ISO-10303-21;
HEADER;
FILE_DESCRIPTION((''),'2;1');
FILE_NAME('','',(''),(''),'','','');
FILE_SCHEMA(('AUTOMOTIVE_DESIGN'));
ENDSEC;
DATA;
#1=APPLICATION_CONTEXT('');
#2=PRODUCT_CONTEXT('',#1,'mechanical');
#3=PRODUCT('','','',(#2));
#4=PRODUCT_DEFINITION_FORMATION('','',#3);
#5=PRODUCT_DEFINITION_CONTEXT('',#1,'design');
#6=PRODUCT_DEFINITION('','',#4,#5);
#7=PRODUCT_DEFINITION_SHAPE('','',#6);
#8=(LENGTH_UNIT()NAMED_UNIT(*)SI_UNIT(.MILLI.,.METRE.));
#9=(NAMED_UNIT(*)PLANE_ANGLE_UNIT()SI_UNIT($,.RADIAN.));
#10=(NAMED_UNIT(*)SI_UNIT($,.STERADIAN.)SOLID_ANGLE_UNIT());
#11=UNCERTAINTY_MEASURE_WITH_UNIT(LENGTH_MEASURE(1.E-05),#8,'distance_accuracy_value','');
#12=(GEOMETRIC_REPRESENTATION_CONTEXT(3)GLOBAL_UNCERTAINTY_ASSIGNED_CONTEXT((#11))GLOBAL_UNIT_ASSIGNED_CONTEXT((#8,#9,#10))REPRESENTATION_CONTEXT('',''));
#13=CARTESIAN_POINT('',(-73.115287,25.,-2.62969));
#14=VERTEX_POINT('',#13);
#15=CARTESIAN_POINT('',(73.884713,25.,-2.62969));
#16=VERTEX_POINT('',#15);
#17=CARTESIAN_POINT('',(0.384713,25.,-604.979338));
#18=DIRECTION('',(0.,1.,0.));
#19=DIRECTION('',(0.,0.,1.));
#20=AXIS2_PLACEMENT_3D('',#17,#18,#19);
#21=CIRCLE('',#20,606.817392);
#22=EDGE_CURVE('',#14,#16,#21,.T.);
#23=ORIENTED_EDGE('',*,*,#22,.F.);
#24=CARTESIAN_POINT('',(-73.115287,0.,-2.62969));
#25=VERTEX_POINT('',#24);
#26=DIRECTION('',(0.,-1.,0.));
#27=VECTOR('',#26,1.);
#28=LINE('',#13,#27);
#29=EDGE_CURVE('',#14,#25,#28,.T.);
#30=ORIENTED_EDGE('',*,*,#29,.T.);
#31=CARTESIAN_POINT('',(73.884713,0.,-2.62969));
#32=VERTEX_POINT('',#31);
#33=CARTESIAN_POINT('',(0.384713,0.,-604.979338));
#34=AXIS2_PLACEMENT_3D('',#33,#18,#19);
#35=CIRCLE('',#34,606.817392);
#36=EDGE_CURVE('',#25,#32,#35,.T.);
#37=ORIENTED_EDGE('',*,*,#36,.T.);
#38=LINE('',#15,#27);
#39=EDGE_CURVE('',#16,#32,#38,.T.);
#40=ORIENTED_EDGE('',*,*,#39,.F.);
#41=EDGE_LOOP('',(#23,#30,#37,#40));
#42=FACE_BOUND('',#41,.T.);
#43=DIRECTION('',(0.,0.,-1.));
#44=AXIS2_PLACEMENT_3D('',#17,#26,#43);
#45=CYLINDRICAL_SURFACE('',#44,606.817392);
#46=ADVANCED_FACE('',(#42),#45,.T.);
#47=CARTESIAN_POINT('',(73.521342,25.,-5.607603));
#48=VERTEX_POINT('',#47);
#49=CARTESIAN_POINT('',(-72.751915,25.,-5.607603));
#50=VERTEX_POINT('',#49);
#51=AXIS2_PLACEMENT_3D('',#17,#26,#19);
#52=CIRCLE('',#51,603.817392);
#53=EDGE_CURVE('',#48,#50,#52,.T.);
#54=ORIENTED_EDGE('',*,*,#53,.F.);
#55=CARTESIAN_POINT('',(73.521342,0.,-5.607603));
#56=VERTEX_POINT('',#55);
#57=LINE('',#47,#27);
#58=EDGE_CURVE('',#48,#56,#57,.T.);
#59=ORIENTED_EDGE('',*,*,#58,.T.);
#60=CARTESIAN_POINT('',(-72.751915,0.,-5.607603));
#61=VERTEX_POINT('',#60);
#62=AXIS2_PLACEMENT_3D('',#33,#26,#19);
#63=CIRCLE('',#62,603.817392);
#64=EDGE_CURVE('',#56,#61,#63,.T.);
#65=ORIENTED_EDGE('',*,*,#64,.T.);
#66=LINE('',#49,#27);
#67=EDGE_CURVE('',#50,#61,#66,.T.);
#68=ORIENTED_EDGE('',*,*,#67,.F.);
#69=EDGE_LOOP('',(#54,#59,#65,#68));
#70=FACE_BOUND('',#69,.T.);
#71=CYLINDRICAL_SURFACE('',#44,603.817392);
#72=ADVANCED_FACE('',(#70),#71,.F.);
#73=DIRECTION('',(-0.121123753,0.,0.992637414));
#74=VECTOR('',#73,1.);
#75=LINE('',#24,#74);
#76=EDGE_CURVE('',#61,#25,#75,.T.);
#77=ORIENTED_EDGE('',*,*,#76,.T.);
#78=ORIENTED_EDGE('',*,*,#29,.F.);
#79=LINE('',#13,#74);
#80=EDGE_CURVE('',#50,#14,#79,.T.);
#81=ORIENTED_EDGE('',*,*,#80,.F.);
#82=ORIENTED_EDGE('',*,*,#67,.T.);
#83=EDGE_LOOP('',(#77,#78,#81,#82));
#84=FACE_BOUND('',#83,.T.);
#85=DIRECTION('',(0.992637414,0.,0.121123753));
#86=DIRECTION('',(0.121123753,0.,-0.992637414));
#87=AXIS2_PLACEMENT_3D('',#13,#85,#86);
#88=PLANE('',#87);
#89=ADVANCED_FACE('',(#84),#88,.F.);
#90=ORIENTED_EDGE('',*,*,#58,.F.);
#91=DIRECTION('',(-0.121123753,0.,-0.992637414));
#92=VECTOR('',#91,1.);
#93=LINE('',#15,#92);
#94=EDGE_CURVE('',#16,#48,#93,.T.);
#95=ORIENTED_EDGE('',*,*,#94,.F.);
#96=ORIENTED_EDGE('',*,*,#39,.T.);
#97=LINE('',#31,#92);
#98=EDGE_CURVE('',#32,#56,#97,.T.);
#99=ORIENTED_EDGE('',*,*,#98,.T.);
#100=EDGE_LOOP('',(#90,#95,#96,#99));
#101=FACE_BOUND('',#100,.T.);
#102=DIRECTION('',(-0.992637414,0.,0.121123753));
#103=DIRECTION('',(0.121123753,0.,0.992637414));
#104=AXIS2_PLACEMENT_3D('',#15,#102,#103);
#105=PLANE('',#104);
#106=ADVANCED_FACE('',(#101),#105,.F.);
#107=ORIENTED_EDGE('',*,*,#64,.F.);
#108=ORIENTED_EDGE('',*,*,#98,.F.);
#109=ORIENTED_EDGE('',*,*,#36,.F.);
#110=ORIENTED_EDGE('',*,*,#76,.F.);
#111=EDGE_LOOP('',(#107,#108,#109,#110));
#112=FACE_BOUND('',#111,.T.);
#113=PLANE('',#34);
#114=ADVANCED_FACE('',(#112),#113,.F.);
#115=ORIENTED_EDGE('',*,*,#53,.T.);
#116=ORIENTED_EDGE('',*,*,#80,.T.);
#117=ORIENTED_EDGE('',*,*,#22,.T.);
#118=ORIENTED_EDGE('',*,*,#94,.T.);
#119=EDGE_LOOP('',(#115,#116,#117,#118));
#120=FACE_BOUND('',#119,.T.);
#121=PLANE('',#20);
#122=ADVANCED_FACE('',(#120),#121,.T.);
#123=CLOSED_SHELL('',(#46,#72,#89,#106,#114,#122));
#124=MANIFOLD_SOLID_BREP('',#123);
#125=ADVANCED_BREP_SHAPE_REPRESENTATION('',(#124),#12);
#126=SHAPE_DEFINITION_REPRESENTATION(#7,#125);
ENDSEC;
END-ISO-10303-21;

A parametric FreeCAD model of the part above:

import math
import FreeCAD as App
import Part
import Sketcher

V = App.Vector

doc = App.newDocument("Part")
body = doc.addObject("PartDesign::Body", "Body")

# Sketch on XZ plane
sketch1 = body.newObject("Sketcher::SketchObject", "Sketch")
sketch1.AttachmentSupport = (doc.getObject("XZ_Plane"), [""])
sketch1.MapMode = "FlatFace"
sketch1.addGeometry(Part.LineSegment(V(-72.8, -5.6, 0), V(-73.1, -2.6, 0)), False)
sketch1.addGeometry(Part.ArcOfCircle(Part.Circle(V(0.4, -605, 0), V(0, 0, 1), 606.8), math.radians(83.04), math.radians(96.96)), False)
sketch1.addGeometry(Part.LineSegment(V(73.9, -2.6, 0), V(73.5, -5.6, 0)), False)
sketch1.addGeometry(Part.ArcOfCircle(Part.Circle(V(0.4, -605, 0), V(0, 0, 1), 603.8), math.radians(83.04), math.radians(96.96)), False)
sketch1.addConstraint(Sketcher.Constraint("Coincident", 0, 2, 1, 2))
sketch1.addConstraint(Sketcher.Constraint("Coincident", 1, 1, 2, 1))
sketch1.addConstraint(Sketcher.Constraint("Coincident", 2, 2, 3, 1))
sketch1.addConstraint(Sketcher.Constraint("Coincident", 3, 2, 0, 1))
sketch1.addConstraint(Sketcher.Constraint("Coincident", 3, 3, 1, 3))
sketch1.addConstraint(Sketcher.Constraint("Horizontal", 0, 2, 1, 1))
sketch1.addConstraint(Sketcher.Constraint("Horizontal", 2, 2, 3, 2))
sketch1.addConstraint(Sketcher.Constraint("Distance", 0, 3.0))
sketch1.addConstraint(Sketcher.Constraint("DistanceX", 0, 2, 1, 1, 147.0))
sketch1.addConstraint(Sketcher.Constraint("Radius", 1, 606.817392))
sketch1.addConstraint(Sketcher.Constraint("DistanceY", 0, 2, -1, 1, 2.62969))
sketch1.addConstraint(Sketcher.Constraint("DistanceX", 0, 2, 2, 2, 146.636629))
sketch1.addConstraint(Sketcher.Constraint("DistanceX", -1, 1, 1, 3, 0.384713))
pad1 = body.newObject("PartDesign::Pad", "Pad")
pad1.Profile = sketch1
pad1.Length = 25
pad1.Reversed = True

doc.recompute()
